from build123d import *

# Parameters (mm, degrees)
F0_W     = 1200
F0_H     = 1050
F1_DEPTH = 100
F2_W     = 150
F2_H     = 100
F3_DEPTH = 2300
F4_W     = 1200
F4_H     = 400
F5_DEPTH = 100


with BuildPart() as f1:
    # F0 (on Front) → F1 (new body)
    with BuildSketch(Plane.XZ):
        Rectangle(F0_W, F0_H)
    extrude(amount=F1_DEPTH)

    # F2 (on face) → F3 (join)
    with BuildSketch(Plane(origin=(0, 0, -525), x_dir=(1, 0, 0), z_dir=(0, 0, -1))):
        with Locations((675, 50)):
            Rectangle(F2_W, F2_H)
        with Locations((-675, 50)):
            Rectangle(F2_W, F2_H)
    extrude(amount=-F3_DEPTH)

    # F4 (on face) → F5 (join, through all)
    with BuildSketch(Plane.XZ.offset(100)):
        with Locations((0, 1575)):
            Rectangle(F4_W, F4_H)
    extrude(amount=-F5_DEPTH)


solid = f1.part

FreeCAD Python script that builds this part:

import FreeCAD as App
import Part
import Sketcher
from FreeCAD import Vector

doc = App.newDocument("Part")
params = doc.addObject("Spreadsheet::Sheet", "Params")
for row, (alias, value) in enumerate([
    ("sketch1_width", "1200 mm"),
    ("sketch1_height", "1050 mm"),
    ("pad1_length", "100 mm"),
    ("sketch2_width", "150 mm"),
    ("sketch2_height", "100 mm"),
    ("pad2_length", "2300 mm"),
    ("sketch3_width", "1200 mm"),
    ("sketch3_height", "400 mm"),
    ("pad3_length", "100 mm"),
], start=1):
    params.set(f"A{row}", alias)
    params.set(f"B{row}", "=" + value)
    params.setAlias(f"B{row}", alias)

body = doc.addObject("PartDesign::Body", "Body")

sketch1 = doc.addObject("Sketcher::SketchObject", "Sketch")
body.addObject(sketch1)
sketch1.AttachmentSupport = (doc.XZ_Plane, [""])
sketch1.MapMode = "FlatFace"
sketch1.addGeometry(Part.LineSegment(Vector(-600, 525, 0), Vector(-600, -525, 0)), False)
sketch1.addGeometry(Part.LineSegment(Vector(-600, -525, 0), Vector(600, -525, 0)), False)
sketch1.addGeometry(Part.LineSegment(Vector(600, -525, 0), Vector(600, 525, 0)), False)
sketch1.addGeometry(Part.LineSegment(Vector(600, 525, 0), Vector(-600, 525, 0)), False)
sketch1.addConstraint(Sketcher.Constraint("Coincident", 0, 2, 1, 1))
sketch1.addConstraint(Sketcher.Constraint("Coincident", 1, 2, 2, 1))
sketch1.addConstraint(Sketcher.Constraint("Coincident", 2, 2, 3, 1))
sketch1.addConstraint(Sketcher.Constraint("Coincident", 3, 2, 0, 1))
sketch1.addConstraint(Sketcher.Constraint("Vertical", 0))
sketch1.addConstraint(Sketcher.Constraint("Horizontal", 1))
sketch1.addConstraint(Sketcher.Constraint("Vertical", 2))
sketch1.addConstraint(Sketcher.Constraint("Horizontal", 3))
sketch1.addConstraint(Sketcher.Constraint("Symmetric", 0, 2, 2, 2, -1, 1))
sketch1.addConstraint(Sketcher.Constraint("DistanceX", 1, 1, 1, 2, 1200.0))
sketch1.addConstraint(Sketcher.Constraint("DistanceY", 0, 2, 0, 1, 1050.0))
sketch1.setExpression("Constraints[9]", "Params.sketch1_width")
sketch1.setExpression("Constraints[10]", "Params.sketch1_height")
pad1 = doc.addObject("PartDesign::Pad", "Pad")
body.addObject(pad1)
pad1.Profile = sketch1
pad1.setExpression("Length", "Params.pad1_length")

sketch2 = doc.addObject("Sketcher::SketchObject", "Sketch001")
body.addObject(sketch2)
sketch2.AttachmentSupport = (doc.XY_Plane, [""])
sketch2.MapMode = "FlatFace"
sketch2.AttachmentOffset = App.Placement(Vector(0, 0, -525), App.Rotation())
sketch2.addGeometry(Part.LineSegment(Vector(600, -100, 0), Vector(600, 0, 0)), False)
sketch2.addGeometry(Part.LineSegment(Vector(600, 0, 0), Vector(750, 0, 0)), False)
sketch2.addGeometry(Part.LineSegment(Vector(750, 0, 0), Vector(750, -100, 0)), False)
sketch2.addGeometry(Part.LineSegment(Vector(750, -100, 0), Vector(600, -100, 0)), False)
sketch2.addGeometry(Part.LineSegment(Vector(-750, -100, 0), Vector(-750, 0, 0)), False)
sketch2.addGeometry(Part.LineSegment(Vector(-750, 0, 0), Vector(-600, 0, 0)), False)
sketch2.addGeometry(Part.LineSegment(Vector(-600, 0, 0), Vector(-600, -100, 0)), False)
sketch2.addGeometry(Part.LineSegment(Vector(-600, -100, 0), Vector(-750, -100, 0)), False)
sketch2.addConstraint(Sketcher.Constraint("Coincident", 0, 2, 1, 1))
sketch2.addConstraint(Sketcher.Constraint("Coincident", 1, 2, 2, 1))
sketch2.addConstraint(Sketcher.Constraint("Coincident", 2, 2, 3, 1))
sketch2.addConstraint(Sketcher.Constraint("Coincident", 3, 2, 0, 1))
sketch2.addConstraint(Sketcher.Constraint("Coincident", 4, 2, 5, 1))
sketch2.addConstraint(Sketcher.Constraint("Coincident", 5, 2, 6, 1))
sketch2.addConstraint(Sketcher.Constraint("Coincident", 6, 2, 7, 1))
sketch2.addConstraint(Sketcher.Constraint("Coincident", 7, 2, 4, 1))
sketch2.addConstraint(Sketcher.Constraint("Vertical", 0))
sketch2.addConstraint(Sketcher.Constraint("Horizontal", 1))
sketch2.addConstraint(Sketcher.Constraint("Vertical", 2))
sketch2.addConstraint(Sketcher.Constraint("Horizontal", 3))
sketch2.addConstraint(Sketcher.Constraint("Vertical", 4))
sketch2.addConstraint(Sketcher.Constraint("Horizontal", 5))
sketch2.addConstraint(Sketcher.Constraint("Vertical", 6))
sketch2.addConstraint(Sketcher.Constraint("Horizontal", 7))
sketch2.addConstraint(Sketcher.Constraint("Symmetric", 1, 2, 4, 2, -1, 1))
sketch2.addConstraint(Sketcher.Constraint("Symmetric", 0, 2, 5, 2, -2))
sketch2.addConstraint(Sketcher.Constraint("Horizontal", 3, 2, 6, 2))
sketch2.addConstraint(Sketcher.Constraint("DistanceX", 1, 1, 1, 2, 150.0))
sketch2.addConstraint(Sketcher.Constraint("DistanceY", 0, 1, 0, 2, 100.0))
sketch2.addConstraint(Sketcher.Constraint("DistanceX", -1, 1, 0, 2, 600.0))
sketch2.setExpression("Constraints[19]", "Params.sketch2_width")
sketch2.setExpression("Constraints[20]", "Params.sketch2_height")
pad2 = doc.addObject("PartDesign::Pad", "Pad001")
body.addObject(pad2)
pad2.Profile = sketch2
pad2.setExpression("Length", "Params.pad2_length")

sketch3 = doc.addObject("Sketcher::SketchObject", "Sketch002")
body.addObject(sketch3)
sketch3.AttachmentSupport = (doc.XZ_Plane, [""])
sketch3.MapMode = "FlatFace"
sketch3.AttachmentOffset = App.Placement(Vector(0, 0, 100), App.Rotation())
sketch3.addGeometry(Part.LineSegment(Vector(-600, 1775, 0), Vector(-600, 1375, 0)), False)
sketch3.addGeometry(Part.LineSegment(Vector(-600, 1375, 0), Vector(600, 1375, 0)), False)
sketch3.addGeometry(Part.LineSegment(Vector(600, 1375, 0), Vector(600, 1775, 0)), False)
sketch3.addGeometry(Part.LineSegment(Vector(600, 1775, 0), Vector(-600, 1775, 0)), False)
sketch3.addConstraint(Sketcher.Constraint("Coincident", 0, 2, 1, 1))
sketch3.addConstraint(Sketcher.Constraint("Coincident", 1, 2, 2, 1))
sketch3.addConstraint(Sketcher.Constraint("Coincident", 2, 2, 3, 1))
sketch3.addConstraint(Sketcher.Constraint("Coincident", 3, 2, 0, 1))
sketch3.addConstraint(Sketcher.Constraint("Vertical", 0))
sketch3.addConstraint(Sketcher.Constraint("Horizontal", 1))
sketch3.addConstraint(Sketcher.Constraint("Vertical", 2))
sketch3.addConstraint(Sketcher.Constraint("Horizontal", 3))
sketch3.addConstraint(Sketcher.Constraint("DistanceX", 1, 1, 1, 2, 1200.0))
sketch3.addConstraint(Sketcher.Constraint("DistanceY", 0, 2, 0, 1, 400.0))
sketch3.addConstraint(Sketcher.Constraint("DistanceX", 0, 2, -1, 1, 600.0))
sketch3.addConstraint(Sketcher.Constraint("DistanceY", -1, 1, 0, 2, 1375.0))
sketch3.setExpression("Constraints[8]", "Params.sketch3_width")
sketch3.setExpression("Constraints[9]", "Params.sketch3_height")
pad3 = doc.addObject("PartDesign::Pad", "Pad002")
body.addObject(pad3)
pad3.Profile = sketch3
pad3.setExpression("Length", "Params.pad3_length")
pad3.Reversed = True

doc.recompute()
